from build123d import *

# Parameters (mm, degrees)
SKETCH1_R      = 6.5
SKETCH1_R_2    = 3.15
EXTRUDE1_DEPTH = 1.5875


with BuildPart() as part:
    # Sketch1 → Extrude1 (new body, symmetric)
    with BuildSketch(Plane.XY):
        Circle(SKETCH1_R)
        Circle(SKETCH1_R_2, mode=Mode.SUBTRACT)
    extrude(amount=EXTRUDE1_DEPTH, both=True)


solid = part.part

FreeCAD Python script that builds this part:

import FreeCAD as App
import Part
import Sketcher
Q = App.Units.Quantity

doc = App.newDocument("Part")
body = doc.addObject("PartDesign::Body", "Body")

# Sketch on XY plane
sketch1 = doc.addObject("Sketcher::SketchObject", "Sketch")
body.addObject(sketch1)
sketch1.AttachmentSupport = (doc.XY_Plane, [""])
sketch1.MapMode = "FlatFace"
sketch1.addGeometry(Part.Circle(App.Vector(0, 0, 0), App.Vector(0, 0, 1), 6.5), False)
sketch1.addGeometry(Part.Circle(App.Vector(0, 0, 0), App.Vector(0, 0, 1), 3.1), False)
sketch1.addConstraint(Sketcher.Constraint("Coincident", 0, 3, -1, 1))
sketch1.addConstraint(Sketcher.Constraint("Coincident", 1, 3, -1, 1))
sketch1.addConstraint(Sketcher.Constraint("Diameter", 0, Q("13 mm")))
sketch1.addConstraint(Sketcher.Constraint("Diameter", 1, Q("6.3 mm")))
pad1 = doc.addObject("PartDesign::Pad", "Pad")
body.addObject(pad1)
pad1.Profile = sketch1
pad1.Length = 3.175
pad1.Midplane = True

doc.recompute()
